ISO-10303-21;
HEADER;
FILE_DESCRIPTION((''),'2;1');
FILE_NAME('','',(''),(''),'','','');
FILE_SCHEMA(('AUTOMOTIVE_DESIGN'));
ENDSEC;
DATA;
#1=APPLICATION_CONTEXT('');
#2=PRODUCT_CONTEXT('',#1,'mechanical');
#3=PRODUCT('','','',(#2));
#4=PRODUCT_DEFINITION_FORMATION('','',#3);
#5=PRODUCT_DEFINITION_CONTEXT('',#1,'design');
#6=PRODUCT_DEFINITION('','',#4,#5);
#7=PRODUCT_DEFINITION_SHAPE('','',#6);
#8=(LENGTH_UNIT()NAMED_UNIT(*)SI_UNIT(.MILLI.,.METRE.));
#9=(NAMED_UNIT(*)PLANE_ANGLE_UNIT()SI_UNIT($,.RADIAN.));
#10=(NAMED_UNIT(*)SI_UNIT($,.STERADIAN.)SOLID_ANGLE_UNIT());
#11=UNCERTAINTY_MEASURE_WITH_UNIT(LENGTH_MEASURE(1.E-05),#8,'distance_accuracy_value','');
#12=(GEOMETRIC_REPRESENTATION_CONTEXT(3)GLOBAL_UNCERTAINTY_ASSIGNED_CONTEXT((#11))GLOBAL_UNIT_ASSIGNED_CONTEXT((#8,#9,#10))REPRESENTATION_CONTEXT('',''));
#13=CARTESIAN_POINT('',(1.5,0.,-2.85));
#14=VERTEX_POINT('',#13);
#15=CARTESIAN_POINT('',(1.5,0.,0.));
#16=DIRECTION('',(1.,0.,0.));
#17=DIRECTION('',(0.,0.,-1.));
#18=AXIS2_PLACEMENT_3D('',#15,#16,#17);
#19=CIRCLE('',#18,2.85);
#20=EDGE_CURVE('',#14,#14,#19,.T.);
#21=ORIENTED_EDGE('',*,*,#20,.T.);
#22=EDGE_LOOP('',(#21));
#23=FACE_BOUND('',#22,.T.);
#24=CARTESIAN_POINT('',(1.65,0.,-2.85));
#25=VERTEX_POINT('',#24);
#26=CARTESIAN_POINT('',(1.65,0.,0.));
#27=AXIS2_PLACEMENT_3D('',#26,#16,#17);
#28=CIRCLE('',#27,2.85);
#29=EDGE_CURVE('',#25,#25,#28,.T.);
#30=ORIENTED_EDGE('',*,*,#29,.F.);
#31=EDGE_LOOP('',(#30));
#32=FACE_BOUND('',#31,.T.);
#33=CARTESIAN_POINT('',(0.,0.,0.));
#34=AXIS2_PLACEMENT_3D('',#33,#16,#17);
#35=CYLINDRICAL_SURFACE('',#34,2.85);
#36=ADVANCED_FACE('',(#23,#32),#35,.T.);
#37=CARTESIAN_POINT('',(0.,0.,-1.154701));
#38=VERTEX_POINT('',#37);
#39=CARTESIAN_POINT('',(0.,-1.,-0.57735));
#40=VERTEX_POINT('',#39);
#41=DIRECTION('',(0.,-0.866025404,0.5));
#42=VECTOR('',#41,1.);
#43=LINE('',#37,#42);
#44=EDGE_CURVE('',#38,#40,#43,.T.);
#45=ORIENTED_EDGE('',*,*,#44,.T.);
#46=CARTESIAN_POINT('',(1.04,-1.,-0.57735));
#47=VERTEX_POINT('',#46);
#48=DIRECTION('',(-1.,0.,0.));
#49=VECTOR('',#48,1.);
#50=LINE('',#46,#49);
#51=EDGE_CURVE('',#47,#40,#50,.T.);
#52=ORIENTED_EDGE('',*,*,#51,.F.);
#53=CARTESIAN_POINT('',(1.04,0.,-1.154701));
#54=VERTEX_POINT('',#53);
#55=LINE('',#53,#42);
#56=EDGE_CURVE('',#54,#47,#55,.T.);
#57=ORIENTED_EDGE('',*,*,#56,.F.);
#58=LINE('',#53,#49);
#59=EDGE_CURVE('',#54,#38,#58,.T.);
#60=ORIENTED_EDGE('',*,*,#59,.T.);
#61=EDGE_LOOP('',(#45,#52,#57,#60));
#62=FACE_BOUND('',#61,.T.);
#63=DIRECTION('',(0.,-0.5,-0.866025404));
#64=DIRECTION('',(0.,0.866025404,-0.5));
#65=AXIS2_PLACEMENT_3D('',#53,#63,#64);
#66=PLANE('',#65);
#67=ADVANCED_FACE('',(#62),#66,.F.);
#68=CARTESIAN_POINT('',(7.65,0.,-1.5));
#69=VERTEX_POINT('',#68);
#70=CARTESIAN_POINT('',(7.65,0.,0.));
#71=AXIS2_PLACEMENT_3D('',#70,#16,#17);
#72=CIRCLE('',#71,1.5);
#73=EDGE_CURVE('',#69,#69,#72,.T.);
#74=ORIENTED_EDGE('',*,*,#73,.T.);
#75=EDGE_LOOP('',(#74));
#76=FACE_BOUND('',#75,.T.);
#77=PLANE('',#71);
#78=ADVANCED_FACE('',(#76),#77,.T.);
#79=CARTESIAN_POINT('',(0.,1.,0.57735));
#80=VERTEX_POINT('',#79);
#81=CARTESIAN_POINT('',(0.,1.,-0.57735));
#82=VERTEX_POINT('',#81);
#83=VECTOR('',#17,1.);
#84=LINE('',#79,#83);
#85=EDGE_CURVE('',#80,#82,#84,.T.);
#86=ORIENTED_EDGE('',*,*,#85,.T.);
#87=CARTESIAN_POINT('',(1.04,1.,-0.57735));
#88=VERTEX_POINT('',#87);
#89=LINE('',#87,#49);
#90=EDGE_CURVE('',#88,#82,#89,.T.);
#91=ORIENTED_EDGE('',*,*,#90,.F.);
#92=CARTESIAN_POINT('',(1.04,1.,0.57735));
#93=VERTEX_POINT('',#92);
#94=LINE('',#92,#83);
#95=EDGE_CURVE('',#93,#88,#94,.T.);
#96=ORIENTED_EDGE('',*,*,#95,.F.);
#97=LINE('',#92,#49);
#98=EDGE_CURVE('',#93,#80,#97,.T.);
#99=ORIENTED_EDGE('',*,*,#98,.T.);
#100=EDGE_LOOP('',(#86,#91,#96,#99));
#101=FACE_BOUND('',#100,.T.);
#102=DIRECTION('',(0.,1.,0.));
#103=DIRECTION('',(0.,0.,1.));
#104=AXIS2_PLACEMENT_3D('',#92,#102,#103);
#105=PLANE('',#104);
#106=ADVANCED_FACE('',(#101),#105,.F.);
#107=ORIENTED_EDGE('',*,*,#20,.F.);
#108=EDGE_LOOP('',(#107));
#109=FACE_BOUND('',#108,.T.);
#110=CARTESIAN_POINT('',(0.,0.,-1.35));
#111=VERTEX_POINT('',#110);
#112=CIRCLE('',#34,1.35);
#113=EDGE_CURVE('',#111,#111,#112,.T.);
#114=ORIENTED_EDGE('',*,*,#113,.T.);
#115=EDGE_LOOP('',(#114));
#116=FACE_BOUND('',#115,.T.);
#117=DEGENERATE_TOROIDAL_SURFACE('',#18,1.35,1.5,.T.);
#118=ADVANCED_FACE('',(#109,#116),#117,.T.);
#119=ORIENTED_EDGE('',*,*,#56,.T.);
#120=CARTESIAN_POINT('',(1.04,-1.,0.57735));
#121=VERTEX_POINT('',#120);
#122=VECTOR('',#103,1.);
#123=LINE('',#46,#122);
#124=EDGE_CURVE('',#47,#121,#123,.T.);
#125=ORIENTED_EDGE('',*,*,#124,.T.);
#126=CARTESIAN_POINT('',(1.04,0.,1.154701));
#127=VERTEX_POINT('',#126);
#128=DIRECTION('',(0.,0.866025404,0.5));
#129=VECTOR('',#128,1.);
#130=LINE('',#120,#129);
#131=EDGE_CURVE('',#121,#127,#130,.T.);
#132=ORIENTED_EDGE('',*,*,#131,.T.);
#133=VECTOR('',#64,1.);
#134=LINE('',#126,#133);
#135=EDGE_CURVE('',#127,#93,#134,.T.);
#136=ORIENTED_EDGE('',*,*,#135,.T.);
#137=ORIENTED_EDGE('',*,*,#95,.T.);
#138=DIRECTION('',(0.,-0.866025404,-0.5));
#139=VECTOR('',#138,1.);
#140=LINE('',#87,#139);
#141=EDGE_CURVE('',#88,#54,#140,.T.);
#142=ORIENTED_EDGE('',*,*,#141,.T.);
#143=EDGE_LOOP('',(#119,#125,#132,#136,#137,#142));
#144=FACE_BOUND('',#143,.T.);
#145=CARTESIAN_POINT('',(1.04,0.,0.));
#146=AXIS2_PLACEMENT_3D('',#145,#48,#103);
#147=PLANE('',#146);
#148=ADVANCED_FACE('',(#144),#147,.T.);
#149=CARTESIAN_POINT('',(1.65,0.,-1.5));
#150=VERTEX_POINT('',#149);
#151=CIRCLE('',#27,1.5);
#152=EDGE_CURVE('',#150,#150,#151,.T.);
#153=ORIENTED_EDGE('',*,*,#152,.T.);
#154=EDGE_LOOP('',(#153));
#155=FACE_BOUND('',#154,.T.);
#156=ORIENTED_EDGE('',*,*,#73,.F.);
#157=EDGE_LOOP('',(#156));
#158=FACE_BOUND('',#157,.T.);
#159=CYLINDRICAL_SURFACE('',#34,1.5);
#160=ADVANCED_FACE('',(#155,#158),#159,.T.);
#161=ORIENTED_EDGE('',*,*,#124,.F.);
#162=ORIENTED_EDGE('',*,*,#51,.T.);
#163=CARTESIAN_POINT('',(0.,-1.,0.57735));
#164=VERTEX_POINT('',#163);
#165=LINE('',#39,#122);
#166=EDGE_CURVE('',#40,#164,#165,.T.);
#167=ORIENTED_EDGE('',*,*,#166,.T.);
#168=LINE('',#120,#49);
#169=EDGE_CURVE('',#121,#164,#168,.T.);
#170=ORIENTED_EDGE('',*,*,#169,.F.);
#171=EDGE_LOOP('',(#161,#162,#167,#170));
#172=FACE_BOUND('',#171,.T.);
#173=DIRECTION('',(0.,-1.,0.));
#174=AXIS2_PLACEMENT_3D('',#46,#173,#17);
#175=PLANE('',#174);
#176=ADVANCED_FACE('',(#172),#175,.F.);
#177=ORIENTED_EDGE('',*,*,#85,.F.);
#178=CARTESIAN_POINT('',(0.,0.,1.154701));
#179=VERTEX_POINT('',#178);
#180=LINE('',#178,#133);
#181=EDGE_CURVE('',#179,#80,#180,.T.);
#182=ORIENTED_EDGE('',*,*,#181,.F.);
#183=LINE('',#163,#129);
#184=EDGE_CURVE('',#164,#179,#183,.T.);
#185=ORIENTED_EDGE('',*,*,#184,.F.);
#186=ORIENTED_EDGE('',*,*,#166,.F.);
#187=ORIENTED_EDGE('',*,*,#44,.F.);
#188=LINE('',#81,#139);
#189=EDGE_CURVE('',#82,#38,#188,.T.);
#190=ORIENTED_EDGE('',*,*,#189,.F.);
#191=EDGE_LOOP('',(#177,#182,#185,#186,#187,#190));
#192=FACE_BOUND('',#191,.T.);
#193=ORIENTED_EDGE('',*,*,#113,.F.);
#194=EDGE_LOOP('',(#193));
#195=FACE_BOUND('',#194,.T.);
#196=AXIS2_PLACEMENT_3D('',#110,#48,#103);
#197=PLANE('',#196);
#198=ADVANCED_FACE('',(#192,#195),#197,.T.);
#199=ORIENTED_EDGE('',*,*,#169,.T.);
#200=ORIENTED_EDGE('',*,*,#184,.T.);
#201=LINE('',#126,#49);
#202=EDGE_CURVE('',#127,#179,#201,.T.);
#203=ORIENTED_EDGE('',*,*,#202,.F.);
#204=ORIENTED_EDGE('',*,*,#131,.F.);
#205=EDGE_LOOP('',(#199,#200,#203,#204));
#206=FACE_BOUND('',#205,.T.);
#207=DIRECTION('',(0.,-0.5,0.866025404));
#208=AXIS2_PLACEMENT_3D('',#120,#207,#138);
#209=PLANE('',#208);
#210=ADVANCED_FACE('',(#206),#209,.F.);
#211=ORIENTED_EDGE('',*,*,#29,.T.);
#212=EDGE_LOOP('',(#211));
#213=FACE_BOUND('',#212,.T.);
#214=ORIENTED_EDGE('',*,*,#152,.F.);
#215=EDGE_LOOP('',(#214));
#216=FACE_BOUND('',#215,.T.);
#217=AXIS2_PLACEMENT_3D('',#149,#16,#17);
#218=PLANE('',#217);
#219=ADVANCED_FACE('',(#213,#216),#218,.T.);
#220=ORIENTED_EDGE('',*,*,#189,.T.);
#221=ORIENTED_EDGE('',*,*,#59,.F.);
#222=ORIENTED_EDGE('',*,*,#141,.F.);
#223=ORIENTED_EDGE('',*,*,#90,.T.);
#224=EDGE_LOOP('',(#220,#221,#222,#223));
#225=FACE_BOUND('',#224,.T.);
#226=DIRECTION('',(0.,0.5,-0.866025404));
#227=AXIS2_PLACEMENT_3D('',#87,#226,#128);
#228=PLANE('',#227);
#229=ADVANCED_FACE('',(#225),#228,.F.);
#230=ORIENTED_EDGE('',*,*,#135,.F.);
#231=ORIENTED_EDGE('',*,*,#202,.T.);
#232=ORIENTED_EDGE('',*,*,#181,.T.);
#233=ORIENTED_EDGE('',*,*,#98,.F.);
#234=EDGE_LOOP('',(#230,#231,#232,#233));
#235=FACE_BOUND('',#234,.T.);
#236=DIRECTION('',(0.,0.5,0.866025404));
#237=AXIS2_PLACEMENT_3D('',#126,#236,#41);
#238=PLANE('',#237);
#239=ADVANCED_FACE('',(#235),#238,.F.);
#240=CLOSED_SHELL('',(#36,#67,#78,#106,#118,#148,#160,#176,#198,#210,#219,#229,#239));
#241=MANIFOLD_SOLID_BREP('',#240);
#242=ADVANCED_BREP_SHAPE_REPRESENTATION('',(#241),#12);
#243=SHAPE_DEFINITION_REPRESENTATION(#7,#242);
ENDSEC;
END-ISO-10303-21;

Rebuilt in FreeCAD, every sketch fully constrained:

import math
import FreeCAD as App
import Part
import Sketcher
Q = App.Units.Quantity

doc = App.newDocument("Part")
body = doc.addObject("PartDesign::Body", "Body")

# Sketch on XZ plane
sketch1 = doc.addObject("Sketcher::SketchObject", "Sketch")
body.addObject(sketch1)
sketch1.AttachmentSupport = (doc.XZ_Plane, [""])
sketch1.MapMode = "FlatFace"
sketch1.addGeometry([
    Part.LineSegment(App.Vector(0, 0, 0), App.Vector(7.65, 0, 0)),  # 0
    Part.LineSegment(App.Vector(7.65, 0, 0), App.Vector(7.65, -1.5, 0)),  # 1
    Part.LineSegment(App.Vector(7.65, -1.5, 0), App.Vector(1.65, -1.5, 0)),  # 2
    Part.LineSegment(App.Vector(1.65, -1.5, 0), App.Vector(1.65, -2.85, 0)),  # 3
    Part.LineSegment(App.Vector(1.65, -2.85, 0), App.Vector(1.5, -2.85, 0)),  # 4
    Part.ArcOfCircle(Part.Circle(App.Vector(1.5, -1.35, 0), App.Vector(0, 0, 1), 1.5), math.radians(180), math.radians(270)),  # 5
    Part.LineSegment(App.Vector(0, -1.35, 0), App.Vector(0, 0, 0)),  # 6
], False)
sketch1.addConstraint([
    Sketcher.Constraint("Coincident", 0, 2, 1, 1),
    Sketcher.Constraint("Coincident", 1, 2, 2, 1),
    Sketcher.Constraint("Coincident", 2, 2, 3, 1),
    Sketcher.Constraint("Coincident", 3, 2, 4, 1),
    Sketcher.Constraint("Tangent", 4, 2, 5, 2),
    Sketcher.Constraint("Tangent", 5, 1, 6, 1),
    Sketcher.Constraint("Coincident", 6, 2, 0, 1),
    Sketcher.Constraint("Horizontal", 0),
    Sketcher.Constraint("Vertical", 1),
    Sketcher.Constraint("Horizontal", 2),
    Sketcher.Constraint("Vertical", 3),
    Sketcher.Constraint("Horizontal", 4),
    Sketcher.Constraint("Vertical", 6),
    Sketcher.Constraint("Coincident", 6, 2, -1, 1),
    Sketcher.Constraint("Equal", 3, 6),
    Sketcher.Constraint("Radius", 5, 1.5),
    Sketcher.Constraint("DistanceX", 2, 2, 2, 1, 6.0),
    Sketcher.Constraint("DistanceX", 0, 1, 0, 2, 7.65),
    Sketcher.Constraint("DistanceY", 3, 2, 3, 1, 1.35),
])
revolution = doc.addObject("PartDesign::Revolution", "Revolution")
body.addObject(revolution)
revolution.Profile = sketch1
revolution.ReferenceAxis = (sketch1, ["H_Axis"])
revolution.Angle = 360

# Sketch on YZ plane
sketch2 = doc.addObject("Sketcher::SketchObject", "Sketch001")
body.addObject(sketch2)
sketch2.AttachmentSupport = (doc.YZ_Plane, [""])
sketch2.MapMode = "FlatFace"
sketch2.addGeometry([
    Part.LineSegment(App.Vector(0, 1.2, 0), App.Vector(1, 0.6, 0)),  # 0
    Part.LineSegment(App.Vector(1, 0.6, 0), App.Vector(1, -0.6, 0)),  # 1
    Part.LineSegment(App.Vector(1, -0.6, 0), App.Vector(0, -1.2, 0)),  # 2
    Part.LineSegment(App.Vector(0, -1.2, 0), App.Vector(-1, -0.6, 0)),  # 3
    Part.LineSegment(App.Vector(-1, -0.6, 0), App.Vector(-1, 0.6, 0)),  # 4
    Part.LineSegment(App.Vector(-1, 0.6, 0), App.Vector(0, 1.2, 0)),  # 5
], False)
sketch2.addConstraint([
    Sketcher.Constraint("Coincident", 0, 2, 1, 1),
    Sketcher.Constraint("Coincident", 1, 2, 2, 1),
    Sketcher.Constraint("Coincident", 2, 2, 3, 1),
    Sketcher.Constraint("Coincident", 3, 2, 4, 1),
    Sketcher.Constraint("Coincident", 4, 2, 5, 1),
    Sketcher.Constraint("Coincident", 5, 2, 0, 1),
    Sketcher.Constraint("Vertical", 1),
    Sketcher.Constraint("Vertical", 4),
    Sketcher.Constraint("Symmetric", 0, 2, 3, 2, -1, 1),
    Sketcher.Constraint("Symmetric", 2, 2, 5, 2, -1, 1),
    Sketcher.Constraint("PointOnObject", 2, 2, -2),
    Sketcher.Constraint("Parallel", 2, 5),
    Sketcher.Constraint("Horizontal", 1, 2, 3, 2),
    Sketcher.Constraint("Angle", 0, Q("-30 deg")),
    Sketcher.Constraint("DistanceX", -1, 1, 0, 2, 1.0),
    Sketcher.Constraint("DistanceY", 1, 2, 1, 1, 1.154701),
])
pocket1 = doc.addObject("PartDesign::Pocket", "Pocket")
body.addObject(pocket1)
pocket1.Profile = sketch2
pocket1.Length = 1.04
pocket1.Reversed = True

doc.recompute()
